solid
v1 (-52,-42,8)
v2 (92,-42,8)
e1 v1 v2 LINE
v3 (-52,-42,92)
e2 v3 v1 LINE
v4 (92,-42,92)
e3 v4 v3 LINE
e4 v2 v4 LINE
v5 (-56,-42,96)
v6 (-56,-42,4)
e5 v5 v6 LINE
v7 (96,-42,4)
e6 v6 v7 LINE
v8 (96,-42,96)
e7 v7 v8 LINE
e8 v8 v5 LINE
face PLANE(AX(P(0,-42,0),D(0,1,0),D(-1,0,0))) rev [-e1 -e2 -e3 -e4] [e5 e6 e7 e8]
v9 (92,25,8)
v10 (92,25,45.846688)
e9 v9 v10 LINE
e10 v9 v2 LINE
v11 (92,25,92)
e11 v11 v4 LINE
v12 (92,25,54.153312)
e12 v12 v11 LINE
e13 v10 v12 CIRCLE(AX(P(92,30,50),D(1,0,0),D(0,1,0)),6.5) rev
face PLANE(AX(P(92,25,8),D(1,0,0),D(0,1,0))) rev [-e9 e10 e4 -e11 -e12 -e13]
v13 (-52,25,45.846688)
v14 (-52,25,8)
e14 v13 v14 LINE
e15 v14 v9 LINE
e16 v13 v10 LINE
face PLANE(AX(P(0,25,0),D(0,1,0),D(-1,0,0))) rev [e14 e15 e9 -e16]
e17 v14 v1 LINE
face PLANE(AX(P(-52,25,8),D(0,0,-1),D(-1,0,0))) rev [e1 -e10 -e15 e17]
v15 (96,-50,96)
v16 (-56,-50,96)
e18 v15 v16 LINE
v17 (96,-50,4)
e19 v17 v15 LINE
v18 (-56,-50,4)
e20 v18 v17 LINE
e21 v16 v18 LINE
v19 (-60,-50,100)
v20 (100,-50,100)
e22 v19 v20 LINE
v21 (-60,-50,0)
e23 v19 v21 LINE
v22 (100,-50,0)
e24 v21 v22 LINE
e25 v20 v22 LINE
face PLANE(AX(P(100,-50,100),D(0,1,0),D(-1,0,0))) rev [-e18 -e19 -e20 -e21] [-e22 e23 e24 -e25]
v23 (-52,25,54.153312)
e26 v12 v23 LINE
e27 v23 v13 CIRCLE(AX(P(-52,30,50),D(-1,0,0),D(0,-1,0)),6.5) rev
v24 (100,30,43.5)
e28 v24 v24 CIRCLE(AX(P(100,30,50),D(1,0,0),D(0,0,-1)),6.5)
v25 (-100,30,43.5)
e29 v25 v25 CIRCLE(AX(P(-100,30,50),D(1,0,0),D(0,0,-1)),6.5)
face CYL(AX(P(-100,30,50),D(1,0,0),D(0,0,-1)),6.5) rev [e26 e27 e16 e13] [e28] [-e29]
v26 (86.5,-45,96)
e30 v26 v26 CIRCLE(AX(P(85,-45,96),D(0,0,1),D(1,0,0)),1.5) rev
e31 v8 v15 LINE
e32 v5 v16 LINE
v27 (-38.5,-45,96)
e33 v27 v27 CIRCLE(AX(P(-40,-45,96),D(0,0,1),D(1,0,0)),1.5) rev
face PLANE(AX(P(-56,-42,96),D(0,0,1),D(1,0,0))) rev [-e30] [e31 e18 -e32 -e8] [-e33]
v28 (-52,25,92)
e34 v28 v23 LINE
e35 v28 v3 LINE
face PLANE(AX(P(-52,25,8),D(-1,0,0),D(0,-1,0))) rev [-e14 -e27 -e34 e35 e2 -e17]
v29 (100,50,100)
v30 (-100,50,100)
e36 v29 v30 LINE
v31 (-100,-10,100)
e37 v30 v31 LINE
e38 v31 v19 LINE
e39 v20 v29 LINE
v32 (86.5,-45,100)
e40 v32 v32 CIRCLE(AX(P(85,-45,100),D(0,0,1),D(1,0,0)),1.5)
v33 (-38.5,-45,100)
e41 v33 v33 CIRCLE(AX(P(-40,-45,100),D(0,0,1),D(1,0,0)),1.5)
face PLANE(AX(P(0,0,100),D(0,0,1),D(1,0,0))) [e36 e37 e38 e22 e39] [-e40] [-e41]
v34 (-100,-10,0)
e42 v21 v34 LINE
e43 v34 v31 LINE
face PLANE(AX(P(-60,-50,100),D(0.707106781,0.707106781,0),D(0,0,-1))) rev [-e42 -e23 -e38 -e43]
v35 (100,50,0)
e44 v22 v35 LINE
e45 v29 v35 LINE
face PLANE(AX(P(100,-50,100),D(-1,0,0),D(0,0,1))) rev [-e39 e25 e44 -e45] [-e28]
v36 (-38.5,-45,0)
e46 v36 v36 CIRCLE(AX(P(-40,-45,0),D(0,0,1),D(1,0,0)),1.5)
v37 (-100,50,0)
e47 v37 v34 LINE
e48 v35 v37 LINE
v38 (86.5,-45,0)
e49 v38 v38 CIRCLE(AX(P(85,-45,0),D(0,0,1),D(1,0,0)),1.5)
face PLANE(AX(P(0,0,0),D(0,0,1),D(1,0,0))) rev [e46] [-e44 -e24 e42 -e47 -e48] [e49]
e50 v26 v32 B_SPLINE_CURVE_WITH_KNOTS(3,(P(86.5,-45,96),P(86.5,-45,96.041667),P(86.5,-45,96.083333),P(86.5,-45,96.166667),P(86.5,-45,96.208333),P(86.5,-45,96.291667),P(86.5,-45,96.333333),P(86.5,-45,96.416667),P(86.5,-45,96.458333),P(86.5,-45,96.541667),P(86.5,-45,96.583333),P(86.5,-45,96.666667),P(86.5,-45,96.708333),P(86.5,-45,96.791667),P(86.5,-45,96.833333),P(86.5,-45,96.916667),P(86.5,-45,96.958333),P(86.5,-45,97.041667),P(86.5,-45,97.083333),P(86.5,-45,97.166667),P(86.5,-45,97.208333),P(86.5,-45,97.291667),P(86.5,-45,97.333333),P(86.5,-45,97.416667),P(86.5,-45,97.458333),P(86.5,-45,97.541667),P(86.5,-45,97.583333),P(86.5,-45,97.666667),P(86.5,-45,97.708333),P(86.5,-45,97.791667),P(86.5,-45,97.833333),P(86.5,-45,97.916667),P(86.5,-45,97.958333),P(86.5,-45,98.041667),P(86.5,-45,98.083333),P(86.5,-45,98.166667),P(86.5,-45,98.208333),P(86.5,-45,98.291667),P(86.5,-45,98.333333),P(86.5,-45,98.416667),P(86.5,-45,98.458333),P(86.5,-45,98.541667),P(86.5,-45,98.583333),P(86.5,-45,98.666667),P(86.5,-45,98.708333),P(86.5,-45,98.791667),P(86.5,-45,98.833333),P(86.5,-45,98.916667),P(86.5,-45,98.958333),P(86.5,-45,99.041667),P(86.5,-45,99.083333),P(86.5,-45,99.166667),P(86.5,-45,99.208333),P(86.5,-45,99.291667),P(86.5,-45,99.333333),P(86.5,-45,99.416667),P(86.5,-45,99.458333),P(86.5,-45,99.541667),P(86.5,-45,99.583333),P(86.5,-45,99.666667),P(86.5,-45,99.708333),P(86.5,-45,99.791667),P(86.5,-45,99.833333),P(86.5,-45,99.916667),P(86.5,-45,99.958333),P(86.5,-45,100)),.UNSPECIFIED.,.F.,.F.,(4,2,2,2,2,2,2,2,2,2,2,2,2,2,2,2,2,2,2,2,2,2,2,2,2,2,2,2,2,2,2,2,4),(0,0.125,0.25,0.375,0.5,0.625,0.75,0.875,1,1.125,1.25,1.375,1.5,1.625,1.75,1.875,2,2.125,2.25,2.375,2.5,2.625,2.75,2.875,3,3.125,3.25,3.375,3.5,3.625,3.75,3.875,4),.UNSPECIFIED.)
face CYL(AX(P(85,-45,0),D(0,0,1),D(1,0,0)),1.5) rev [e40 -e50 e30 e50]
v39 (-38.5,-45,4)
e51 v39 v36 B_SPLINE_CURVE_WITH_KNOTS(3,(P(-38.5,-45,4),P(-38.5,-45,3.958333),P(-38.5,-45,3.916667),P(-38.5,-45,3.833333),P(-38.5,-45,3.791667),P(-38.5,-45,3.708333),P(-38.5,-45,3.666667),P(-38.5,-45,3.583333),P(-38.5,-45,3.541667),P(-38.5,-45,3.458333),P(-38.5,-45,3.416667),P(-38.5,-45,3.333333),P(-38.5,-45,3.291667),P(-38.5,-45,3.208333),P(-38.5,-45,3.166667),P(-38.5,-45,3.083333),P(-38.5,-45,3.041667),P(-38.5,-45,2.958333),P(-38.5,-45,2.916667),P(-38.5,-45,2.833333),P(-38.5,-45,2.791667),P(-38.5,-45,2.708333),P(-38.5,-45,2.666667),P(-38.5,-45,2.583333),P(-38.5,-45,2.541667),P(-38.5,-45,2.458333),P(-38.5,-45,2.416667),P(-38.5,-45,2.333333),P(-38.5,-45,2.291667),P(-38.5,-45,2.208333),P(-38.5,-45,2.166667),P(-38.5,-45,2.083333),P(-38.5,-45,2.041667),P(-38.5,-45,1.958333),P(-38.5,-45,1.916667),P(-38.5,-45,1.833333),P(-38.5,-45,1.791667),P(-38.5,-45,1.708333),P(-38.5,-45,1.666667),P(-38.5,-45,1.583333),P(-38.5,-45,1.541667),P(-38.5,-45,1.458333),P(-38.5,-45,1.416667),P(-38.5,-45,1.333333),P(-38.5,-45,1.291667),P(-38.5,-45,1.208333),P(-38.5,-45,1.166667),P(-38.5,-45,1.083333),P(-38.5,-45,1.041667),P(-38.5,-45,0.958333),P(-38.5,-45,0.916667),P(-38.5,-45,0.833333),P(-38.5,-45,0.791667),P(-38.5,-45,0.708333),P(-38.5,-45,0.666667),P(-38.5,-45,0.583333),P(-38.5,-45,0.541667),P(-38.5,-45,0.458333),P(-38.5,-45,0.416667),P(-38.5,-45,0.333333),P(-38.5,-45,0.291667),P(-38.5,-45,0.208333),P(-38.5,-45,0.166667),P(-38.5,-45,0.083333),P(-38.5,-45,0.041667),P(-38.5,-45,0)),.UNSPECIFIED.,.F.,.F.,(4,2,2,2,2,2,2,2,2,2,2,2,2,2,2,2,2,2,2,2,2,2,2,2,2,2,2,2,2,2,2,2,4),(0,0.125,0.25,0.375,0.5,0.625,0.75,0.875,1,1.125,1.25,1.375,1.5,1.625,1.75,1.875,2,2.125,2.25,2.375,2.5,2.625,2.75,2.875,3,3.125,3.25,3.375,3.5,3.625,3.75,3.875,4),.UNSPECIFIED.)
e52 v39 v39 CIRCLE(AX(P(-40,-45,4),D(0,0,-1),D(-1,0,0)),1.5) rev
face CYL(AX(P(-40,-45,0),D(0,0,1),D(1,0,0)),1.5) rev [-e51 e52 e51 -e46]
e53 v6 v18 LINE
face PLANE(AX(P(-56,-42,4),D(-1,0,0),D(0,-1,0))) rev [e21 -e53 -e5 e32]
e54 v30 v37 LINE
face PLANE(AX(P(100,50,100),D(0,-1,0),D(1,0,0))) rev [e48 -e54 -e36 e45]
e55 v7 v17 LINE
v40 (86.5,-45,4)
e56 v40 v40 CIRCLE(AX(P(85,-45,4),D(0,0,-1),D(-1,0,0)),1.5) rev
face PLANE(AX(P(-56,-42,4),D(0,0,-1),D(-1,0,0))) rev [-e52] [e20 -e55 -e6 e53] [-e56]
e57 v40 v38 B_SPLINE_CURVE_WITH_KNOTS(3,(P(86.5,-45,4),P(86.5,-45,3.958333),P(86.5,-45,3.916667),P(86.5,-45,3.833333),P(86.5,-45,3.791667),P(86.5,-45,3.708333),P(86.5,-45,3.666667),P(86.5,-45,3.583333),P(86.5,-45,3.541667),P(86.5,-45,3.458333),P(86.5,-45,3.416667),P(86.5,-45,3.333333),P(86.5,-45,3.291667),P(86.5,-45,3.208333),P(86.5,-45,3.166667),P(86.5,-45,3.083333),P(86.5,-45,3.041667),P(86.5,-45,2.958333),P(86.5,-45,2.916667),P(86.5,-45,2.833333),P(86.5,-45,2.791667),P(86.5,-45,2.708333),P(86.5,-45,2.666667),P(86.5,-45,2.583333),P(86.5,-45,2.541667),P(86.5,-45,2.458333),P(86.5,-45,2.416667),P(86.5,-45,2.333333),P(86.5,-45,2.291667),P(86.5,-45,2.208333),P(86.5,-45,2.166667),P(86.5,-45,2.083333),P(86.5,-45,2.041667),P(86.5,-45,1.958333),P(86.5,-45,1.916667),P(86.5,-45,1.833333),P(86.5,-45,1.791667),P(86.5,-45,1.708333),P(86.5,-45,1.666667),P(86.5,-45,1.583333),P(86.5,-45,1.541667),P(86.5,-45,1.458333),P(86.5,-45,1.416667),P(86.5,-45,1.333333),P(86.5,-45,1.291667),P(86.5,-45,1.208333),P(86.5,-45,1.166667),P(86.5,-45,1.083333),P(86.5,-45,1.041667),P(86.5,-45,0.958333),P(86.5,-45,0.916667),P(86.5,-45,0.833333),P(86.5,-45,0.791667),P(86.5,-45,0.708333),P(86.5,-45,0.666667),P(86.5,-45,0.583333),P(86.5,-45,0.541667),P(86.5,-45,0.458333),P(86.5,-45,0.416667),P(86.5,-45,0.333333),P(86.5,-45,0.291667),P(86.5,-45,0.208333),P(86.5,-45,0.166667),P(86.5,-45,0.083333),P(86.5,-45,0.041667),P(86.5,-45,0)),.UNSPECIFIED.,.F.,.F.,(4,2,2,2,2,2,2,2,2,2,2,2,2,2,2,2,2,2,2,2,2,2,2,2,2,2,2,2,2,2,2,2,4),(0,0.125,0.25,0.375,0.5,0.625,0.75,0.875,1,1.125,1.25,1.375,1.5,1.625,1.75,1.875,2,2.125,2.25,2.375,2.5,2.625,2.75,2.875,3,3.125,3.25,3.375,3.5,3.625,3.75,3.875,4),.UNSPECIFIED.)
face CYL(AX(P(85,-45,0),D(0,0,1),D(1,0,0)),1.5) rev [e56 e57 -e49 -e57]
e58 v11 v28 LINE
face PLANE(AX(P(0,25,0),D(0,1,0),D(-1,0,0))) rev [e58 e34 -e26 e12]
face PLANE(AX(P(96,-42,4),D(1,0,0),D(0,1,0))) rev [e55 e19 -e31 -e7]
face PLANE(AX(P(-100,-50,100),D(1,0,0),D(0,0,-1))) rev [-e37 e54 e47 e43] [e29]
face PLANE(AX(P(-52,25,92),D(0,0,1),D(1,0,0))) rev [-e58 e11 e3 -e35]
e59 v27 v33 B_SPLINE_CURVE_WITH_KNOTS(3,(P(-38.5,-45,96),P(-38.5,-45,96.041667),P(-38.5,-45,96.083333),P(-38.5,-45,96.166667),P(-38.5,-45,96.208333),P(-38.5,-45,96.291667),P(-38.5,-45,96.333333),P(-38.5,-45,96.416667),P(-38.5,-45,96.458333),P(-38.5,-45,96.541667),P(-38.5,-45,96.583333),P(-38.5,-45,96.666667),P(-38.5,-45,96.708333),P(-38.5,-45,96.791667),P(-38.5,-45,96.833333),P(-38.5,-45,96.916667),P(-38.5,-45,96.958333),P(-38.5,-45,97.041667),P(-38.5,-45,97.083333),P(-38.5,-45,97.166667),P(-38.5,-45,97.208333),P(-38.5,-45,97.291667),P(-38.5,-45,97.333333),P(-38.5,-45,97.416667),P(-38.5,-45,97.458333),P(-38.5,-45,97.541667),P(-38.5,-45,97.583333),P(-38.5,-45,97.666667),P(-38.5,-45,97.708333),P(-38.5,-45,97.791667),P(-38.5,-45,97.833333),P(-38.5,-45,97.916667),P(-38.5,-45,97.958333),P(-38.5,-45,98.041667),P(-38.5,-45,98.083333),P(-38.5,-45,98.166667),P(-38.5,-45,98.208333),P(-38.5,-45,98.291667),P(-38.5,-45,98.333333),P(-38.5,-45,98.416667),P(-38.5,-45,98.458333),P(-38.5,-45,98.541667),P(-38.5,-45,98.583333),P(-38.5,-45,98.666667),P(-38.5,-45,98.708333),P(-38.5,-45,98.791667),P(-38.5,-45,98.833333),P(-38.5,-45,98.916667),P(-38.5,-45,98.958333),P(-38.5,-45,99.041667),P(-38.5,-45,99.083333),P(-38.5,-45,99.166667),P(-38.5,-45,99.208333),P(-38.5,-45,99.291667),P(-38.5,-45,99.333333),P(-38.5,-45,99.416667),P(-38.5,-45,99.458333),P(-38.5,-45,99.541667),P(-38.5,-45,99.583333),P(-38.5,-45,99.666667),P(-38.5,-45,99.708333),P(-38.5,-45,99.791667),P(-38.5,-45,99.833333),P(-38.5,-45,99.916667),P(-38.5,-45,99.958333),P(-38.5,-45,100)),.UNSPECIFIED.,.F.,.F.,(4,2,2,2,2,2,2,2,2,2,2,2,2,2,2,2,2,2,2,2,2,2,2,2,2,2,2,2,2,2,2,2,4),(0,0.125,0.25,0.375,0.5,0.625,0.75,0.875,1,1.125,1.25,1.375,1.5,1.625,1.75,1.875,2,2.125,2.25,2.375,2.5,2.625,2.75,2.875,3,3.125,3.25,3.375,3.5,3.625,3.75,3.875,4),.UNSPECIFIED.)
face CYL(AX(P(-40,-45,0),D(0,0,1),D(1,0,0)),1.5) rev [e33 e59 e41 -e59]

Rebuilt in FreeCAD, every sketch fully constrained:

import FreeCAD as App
import Part
import Sketcher
Q = App.Units.Quantity


def edges_at(feature, points):
    """Names of the edges that pass closest to the given points."""
    edges = feature.Shape.Edges
    near = lambda p: min(range(len(edges)), key=lambda i: edges[i].distToShape(Part.Vertex(*p))[0])
    return sorted({f"Edge{near(p) + 1}" for p in points})


def add_polygon(sketch, points):
    """Adds a closed chain of lines whose ends are joined by coincident constraints."""
    first, n = sketch.GeometryCount, len(points)
    for a, b in zip(points, points[1:] + points[:1]):
        sketch.addGeometry(Part.LineSegment(App.Vector(*a, 0), App.Vector(*b, 0)), False)
    for i in range(n):
        sketch.addConstraint(Sketcher.Constraint("Coincident", first + i, 2, first + (i + 1) % n, 1))

doc = App.newDocument("Part")
body = doc.addObject("PartDesign::Body", "Body")

# Sketch on XY plane
sketch1 = doc.addObject("Sketcher::SketchObject", "Sketch")
body.addObject(sketch1)
sketch1.AttachmentSupport = (doc.XY_Plane, [""])
sketch1.MapMode = "FlatFace"
add_polygon(sketch1, [(-100, 50), (-100, -50), (100, -50), (100, 50)])  # lines 0-3
sketch1.addConstraint([
    Sketcher.Constraint("Vertical", 0),
    Sketcher.Constraint("Horizontal", 1),
    Sketcher.Constraint("Vertical", 2),
    Sketcher.Constraint("Horizontal", 3),
    Sketcher.Constraint("Symmetric", 0, 2, 2, 2, -1, 1),
    Sketcher.Constraint("DistanceX", 1, 1, 1, 2, Q("200 mm")),
    Sketcher.Constraint("DistanceY", 0, 2, 0, 1, Q("100 mm")),
])
pad1 = doc.addObject("PartDesign::Pad", "Pad")
body.addObject(pad1)
pad1.Profile = sketch1
pad1.Length = 100
doc.recompute()

chamfer = doc.addObject("PartDesign::Chamfer", "Chamfer")
body.addObject(chamfer)
chamfer.Base = (pad1, edges_at(pad1, [(-100, -50, 50)]))
chamfer.Size = 40

# Sketch on YZ plane
sketch2 = doc.addObject("Sketcher::SketchObject", "Sketch001")
body.addObject(sketch2)
sketch2.AttachmentSupport = (doc.YZ_Plane, [""])
sketch2.MapMode = "FlatFace"
sketch2.AttachmentOffset = App.Placement(App.Vector(0, 0, 100), App.Rotation())
sketch2.addGeometry(Part.Circle(App.Vector(30, 50, 0), App.Vector(0, 0, 1), 6), False)
sketch2.addConstraint([
    Sketcher.Constraint("Diameter", 0, Q("13 mm")),
    Sketcher.Constraint("DistanceX", -1, 1, 0, 3, Q("30 mm")),
    Sketcher.Constraint("DistanceY", -1, 1, 0, 3, Q("50 mm")),
])
pocket1 = doc.addObject("PartDesign::Pocket", "Pocket")
body.addObject(pocket1)
pocket1.Profile = sketch2
pocket1.Type = "ThroughAll"

# Sketch on XY plane
sketch3 = doc.addObject("Sketcher::SketchObject", "Sketch002")
body.addObject(sketch3)
sketch3.AttachmentSupport = (doc.XY_Plane, [""])
sketch3.MapMode = "FlatFace"
sketch3.AttachmentOffset = App.Placement(App.Vector(0, 0, 100), App.Rotation())
sketch3.addGeometry([
    Part.Circle(App.Vector(85, -45, 0), App.Vector(0, 0, 1), 1.5),
    Part.Circle(App.Vector(-40, -45, 0), App.Vector(0, 0, 1), 1.5),
], False)
sketch3.addConstraint([
    Sketcher.Constraint("Equal", 0, 1),
    Sketcher.Constraint("Horizontal", 0, 3, 1, 3),
    Sketcher.Constraint("Diameter", 0, Q("3 mm")),
    Sketcher.Constraint("DistanceX", -1, 1, 0, 3, Q("85 mm")),
    Sketcher.Constraint("DistanceY", 0, 3, -1, 1, Q("45 mm")),
    Sketcher.Constraint("DistanceX", 1, 3, -1, 1, Q("40 mm")),
])
pocket2 = doc.addObject("PartDesign::Pocket", "Pocket001")
body.addObject(pocket2)
pocket2.Profile = sketch3
pocket2.Type = "ThroughAll"

# Sketch on XZ plane
sketch4 = doc.addObject("Sketcher::SketchObject", "Sketch003")
body.addObject(sketch4)
sketch4.AttachmentSupport = (doc.XZ_Plane, [""])
sketch4.MapMode = "FlatFace"
sketch4.AttachmentOffset = App.Placement(App.Vector(0, 0, 50), App.Rotation())
add_polygon(sketch4, [(-52, 92), (-52, 8), (92, 8), (92, 92)])  # lines 0-3
sketch4.addConstraint([
    Sketcher.Constraint("Vertical", 0),
    Sketcher.Constraint("Horizontal", 1),
    Sketcher.Constraint("Vertical", 2),
    Sketcher.Constraint("Horizontal", 3),
    Sketcher.Constraint("DistanceX", 1, 1, 1, 2, Q("144 mm")),
    Sketcher.Constraint("DistanceY", 0, 2, 0, 1, Q("84 mm")),
    Sketcher.Constraint("DistanceX", 0, 2, -1, 1, Q("52 mm")),
    Sketcher.Constraint("DistanceY", -1, 1, 0, 2, Q("8 mm")),
])
pocket3 = doc.addObject("PartDesign::Pocket", "Pocket002")
body.addObject(pocket3)
pocket3.Profile = sketch4
pocket3.Length = 75

# Sketch on XZ plane
sketch5 = doc.addObject("Sketcher::SketchObject", "Sketch004")
body.addObject(sketch5)
sketch5.AttachmentSupport = (doc.XZ_Plane, [""])
sketch5.MapMode = "FlatFace"
sketch5.AttachmentOffset = App.Placement(App.Vector(0, 0, 50), App.Rotation())
add_polygon(sketch5, [(-56, 96), (-56, 4), (96, 4), (96, 96)])  # lines 0-3
sketch5.addConstraint([
    Sketcher.Constraint("Vertical", 0),
    Sketcher.Constraint("Horizontal", 1),
    Sketcher.Constraint("Vertical", 2),
    Sketcher.Constraint("Horizontal", 3),
    Sketcher.Constraint("DistanceX", 1, 1, 1, 2, Q("152 mm")),
    Sketcher.Constraint("DistanceY", 0, 2, 0, 1, Q("92 mm")),
    Sketcher.Constraint("DistanceX", 0, 2, -1, 1, Q("56 mm")),
    Sketcher.Constraint("DistanceY", -1, 1, 0, 2, Q("4 mm")),
])
pocket4 = doc.addObject("PartDesign::Pocket", "Pocket003")
body.addObject(pocket4)
pocket4.Profile = sketch5
pocket4.Length = 8

doc.recompute()
